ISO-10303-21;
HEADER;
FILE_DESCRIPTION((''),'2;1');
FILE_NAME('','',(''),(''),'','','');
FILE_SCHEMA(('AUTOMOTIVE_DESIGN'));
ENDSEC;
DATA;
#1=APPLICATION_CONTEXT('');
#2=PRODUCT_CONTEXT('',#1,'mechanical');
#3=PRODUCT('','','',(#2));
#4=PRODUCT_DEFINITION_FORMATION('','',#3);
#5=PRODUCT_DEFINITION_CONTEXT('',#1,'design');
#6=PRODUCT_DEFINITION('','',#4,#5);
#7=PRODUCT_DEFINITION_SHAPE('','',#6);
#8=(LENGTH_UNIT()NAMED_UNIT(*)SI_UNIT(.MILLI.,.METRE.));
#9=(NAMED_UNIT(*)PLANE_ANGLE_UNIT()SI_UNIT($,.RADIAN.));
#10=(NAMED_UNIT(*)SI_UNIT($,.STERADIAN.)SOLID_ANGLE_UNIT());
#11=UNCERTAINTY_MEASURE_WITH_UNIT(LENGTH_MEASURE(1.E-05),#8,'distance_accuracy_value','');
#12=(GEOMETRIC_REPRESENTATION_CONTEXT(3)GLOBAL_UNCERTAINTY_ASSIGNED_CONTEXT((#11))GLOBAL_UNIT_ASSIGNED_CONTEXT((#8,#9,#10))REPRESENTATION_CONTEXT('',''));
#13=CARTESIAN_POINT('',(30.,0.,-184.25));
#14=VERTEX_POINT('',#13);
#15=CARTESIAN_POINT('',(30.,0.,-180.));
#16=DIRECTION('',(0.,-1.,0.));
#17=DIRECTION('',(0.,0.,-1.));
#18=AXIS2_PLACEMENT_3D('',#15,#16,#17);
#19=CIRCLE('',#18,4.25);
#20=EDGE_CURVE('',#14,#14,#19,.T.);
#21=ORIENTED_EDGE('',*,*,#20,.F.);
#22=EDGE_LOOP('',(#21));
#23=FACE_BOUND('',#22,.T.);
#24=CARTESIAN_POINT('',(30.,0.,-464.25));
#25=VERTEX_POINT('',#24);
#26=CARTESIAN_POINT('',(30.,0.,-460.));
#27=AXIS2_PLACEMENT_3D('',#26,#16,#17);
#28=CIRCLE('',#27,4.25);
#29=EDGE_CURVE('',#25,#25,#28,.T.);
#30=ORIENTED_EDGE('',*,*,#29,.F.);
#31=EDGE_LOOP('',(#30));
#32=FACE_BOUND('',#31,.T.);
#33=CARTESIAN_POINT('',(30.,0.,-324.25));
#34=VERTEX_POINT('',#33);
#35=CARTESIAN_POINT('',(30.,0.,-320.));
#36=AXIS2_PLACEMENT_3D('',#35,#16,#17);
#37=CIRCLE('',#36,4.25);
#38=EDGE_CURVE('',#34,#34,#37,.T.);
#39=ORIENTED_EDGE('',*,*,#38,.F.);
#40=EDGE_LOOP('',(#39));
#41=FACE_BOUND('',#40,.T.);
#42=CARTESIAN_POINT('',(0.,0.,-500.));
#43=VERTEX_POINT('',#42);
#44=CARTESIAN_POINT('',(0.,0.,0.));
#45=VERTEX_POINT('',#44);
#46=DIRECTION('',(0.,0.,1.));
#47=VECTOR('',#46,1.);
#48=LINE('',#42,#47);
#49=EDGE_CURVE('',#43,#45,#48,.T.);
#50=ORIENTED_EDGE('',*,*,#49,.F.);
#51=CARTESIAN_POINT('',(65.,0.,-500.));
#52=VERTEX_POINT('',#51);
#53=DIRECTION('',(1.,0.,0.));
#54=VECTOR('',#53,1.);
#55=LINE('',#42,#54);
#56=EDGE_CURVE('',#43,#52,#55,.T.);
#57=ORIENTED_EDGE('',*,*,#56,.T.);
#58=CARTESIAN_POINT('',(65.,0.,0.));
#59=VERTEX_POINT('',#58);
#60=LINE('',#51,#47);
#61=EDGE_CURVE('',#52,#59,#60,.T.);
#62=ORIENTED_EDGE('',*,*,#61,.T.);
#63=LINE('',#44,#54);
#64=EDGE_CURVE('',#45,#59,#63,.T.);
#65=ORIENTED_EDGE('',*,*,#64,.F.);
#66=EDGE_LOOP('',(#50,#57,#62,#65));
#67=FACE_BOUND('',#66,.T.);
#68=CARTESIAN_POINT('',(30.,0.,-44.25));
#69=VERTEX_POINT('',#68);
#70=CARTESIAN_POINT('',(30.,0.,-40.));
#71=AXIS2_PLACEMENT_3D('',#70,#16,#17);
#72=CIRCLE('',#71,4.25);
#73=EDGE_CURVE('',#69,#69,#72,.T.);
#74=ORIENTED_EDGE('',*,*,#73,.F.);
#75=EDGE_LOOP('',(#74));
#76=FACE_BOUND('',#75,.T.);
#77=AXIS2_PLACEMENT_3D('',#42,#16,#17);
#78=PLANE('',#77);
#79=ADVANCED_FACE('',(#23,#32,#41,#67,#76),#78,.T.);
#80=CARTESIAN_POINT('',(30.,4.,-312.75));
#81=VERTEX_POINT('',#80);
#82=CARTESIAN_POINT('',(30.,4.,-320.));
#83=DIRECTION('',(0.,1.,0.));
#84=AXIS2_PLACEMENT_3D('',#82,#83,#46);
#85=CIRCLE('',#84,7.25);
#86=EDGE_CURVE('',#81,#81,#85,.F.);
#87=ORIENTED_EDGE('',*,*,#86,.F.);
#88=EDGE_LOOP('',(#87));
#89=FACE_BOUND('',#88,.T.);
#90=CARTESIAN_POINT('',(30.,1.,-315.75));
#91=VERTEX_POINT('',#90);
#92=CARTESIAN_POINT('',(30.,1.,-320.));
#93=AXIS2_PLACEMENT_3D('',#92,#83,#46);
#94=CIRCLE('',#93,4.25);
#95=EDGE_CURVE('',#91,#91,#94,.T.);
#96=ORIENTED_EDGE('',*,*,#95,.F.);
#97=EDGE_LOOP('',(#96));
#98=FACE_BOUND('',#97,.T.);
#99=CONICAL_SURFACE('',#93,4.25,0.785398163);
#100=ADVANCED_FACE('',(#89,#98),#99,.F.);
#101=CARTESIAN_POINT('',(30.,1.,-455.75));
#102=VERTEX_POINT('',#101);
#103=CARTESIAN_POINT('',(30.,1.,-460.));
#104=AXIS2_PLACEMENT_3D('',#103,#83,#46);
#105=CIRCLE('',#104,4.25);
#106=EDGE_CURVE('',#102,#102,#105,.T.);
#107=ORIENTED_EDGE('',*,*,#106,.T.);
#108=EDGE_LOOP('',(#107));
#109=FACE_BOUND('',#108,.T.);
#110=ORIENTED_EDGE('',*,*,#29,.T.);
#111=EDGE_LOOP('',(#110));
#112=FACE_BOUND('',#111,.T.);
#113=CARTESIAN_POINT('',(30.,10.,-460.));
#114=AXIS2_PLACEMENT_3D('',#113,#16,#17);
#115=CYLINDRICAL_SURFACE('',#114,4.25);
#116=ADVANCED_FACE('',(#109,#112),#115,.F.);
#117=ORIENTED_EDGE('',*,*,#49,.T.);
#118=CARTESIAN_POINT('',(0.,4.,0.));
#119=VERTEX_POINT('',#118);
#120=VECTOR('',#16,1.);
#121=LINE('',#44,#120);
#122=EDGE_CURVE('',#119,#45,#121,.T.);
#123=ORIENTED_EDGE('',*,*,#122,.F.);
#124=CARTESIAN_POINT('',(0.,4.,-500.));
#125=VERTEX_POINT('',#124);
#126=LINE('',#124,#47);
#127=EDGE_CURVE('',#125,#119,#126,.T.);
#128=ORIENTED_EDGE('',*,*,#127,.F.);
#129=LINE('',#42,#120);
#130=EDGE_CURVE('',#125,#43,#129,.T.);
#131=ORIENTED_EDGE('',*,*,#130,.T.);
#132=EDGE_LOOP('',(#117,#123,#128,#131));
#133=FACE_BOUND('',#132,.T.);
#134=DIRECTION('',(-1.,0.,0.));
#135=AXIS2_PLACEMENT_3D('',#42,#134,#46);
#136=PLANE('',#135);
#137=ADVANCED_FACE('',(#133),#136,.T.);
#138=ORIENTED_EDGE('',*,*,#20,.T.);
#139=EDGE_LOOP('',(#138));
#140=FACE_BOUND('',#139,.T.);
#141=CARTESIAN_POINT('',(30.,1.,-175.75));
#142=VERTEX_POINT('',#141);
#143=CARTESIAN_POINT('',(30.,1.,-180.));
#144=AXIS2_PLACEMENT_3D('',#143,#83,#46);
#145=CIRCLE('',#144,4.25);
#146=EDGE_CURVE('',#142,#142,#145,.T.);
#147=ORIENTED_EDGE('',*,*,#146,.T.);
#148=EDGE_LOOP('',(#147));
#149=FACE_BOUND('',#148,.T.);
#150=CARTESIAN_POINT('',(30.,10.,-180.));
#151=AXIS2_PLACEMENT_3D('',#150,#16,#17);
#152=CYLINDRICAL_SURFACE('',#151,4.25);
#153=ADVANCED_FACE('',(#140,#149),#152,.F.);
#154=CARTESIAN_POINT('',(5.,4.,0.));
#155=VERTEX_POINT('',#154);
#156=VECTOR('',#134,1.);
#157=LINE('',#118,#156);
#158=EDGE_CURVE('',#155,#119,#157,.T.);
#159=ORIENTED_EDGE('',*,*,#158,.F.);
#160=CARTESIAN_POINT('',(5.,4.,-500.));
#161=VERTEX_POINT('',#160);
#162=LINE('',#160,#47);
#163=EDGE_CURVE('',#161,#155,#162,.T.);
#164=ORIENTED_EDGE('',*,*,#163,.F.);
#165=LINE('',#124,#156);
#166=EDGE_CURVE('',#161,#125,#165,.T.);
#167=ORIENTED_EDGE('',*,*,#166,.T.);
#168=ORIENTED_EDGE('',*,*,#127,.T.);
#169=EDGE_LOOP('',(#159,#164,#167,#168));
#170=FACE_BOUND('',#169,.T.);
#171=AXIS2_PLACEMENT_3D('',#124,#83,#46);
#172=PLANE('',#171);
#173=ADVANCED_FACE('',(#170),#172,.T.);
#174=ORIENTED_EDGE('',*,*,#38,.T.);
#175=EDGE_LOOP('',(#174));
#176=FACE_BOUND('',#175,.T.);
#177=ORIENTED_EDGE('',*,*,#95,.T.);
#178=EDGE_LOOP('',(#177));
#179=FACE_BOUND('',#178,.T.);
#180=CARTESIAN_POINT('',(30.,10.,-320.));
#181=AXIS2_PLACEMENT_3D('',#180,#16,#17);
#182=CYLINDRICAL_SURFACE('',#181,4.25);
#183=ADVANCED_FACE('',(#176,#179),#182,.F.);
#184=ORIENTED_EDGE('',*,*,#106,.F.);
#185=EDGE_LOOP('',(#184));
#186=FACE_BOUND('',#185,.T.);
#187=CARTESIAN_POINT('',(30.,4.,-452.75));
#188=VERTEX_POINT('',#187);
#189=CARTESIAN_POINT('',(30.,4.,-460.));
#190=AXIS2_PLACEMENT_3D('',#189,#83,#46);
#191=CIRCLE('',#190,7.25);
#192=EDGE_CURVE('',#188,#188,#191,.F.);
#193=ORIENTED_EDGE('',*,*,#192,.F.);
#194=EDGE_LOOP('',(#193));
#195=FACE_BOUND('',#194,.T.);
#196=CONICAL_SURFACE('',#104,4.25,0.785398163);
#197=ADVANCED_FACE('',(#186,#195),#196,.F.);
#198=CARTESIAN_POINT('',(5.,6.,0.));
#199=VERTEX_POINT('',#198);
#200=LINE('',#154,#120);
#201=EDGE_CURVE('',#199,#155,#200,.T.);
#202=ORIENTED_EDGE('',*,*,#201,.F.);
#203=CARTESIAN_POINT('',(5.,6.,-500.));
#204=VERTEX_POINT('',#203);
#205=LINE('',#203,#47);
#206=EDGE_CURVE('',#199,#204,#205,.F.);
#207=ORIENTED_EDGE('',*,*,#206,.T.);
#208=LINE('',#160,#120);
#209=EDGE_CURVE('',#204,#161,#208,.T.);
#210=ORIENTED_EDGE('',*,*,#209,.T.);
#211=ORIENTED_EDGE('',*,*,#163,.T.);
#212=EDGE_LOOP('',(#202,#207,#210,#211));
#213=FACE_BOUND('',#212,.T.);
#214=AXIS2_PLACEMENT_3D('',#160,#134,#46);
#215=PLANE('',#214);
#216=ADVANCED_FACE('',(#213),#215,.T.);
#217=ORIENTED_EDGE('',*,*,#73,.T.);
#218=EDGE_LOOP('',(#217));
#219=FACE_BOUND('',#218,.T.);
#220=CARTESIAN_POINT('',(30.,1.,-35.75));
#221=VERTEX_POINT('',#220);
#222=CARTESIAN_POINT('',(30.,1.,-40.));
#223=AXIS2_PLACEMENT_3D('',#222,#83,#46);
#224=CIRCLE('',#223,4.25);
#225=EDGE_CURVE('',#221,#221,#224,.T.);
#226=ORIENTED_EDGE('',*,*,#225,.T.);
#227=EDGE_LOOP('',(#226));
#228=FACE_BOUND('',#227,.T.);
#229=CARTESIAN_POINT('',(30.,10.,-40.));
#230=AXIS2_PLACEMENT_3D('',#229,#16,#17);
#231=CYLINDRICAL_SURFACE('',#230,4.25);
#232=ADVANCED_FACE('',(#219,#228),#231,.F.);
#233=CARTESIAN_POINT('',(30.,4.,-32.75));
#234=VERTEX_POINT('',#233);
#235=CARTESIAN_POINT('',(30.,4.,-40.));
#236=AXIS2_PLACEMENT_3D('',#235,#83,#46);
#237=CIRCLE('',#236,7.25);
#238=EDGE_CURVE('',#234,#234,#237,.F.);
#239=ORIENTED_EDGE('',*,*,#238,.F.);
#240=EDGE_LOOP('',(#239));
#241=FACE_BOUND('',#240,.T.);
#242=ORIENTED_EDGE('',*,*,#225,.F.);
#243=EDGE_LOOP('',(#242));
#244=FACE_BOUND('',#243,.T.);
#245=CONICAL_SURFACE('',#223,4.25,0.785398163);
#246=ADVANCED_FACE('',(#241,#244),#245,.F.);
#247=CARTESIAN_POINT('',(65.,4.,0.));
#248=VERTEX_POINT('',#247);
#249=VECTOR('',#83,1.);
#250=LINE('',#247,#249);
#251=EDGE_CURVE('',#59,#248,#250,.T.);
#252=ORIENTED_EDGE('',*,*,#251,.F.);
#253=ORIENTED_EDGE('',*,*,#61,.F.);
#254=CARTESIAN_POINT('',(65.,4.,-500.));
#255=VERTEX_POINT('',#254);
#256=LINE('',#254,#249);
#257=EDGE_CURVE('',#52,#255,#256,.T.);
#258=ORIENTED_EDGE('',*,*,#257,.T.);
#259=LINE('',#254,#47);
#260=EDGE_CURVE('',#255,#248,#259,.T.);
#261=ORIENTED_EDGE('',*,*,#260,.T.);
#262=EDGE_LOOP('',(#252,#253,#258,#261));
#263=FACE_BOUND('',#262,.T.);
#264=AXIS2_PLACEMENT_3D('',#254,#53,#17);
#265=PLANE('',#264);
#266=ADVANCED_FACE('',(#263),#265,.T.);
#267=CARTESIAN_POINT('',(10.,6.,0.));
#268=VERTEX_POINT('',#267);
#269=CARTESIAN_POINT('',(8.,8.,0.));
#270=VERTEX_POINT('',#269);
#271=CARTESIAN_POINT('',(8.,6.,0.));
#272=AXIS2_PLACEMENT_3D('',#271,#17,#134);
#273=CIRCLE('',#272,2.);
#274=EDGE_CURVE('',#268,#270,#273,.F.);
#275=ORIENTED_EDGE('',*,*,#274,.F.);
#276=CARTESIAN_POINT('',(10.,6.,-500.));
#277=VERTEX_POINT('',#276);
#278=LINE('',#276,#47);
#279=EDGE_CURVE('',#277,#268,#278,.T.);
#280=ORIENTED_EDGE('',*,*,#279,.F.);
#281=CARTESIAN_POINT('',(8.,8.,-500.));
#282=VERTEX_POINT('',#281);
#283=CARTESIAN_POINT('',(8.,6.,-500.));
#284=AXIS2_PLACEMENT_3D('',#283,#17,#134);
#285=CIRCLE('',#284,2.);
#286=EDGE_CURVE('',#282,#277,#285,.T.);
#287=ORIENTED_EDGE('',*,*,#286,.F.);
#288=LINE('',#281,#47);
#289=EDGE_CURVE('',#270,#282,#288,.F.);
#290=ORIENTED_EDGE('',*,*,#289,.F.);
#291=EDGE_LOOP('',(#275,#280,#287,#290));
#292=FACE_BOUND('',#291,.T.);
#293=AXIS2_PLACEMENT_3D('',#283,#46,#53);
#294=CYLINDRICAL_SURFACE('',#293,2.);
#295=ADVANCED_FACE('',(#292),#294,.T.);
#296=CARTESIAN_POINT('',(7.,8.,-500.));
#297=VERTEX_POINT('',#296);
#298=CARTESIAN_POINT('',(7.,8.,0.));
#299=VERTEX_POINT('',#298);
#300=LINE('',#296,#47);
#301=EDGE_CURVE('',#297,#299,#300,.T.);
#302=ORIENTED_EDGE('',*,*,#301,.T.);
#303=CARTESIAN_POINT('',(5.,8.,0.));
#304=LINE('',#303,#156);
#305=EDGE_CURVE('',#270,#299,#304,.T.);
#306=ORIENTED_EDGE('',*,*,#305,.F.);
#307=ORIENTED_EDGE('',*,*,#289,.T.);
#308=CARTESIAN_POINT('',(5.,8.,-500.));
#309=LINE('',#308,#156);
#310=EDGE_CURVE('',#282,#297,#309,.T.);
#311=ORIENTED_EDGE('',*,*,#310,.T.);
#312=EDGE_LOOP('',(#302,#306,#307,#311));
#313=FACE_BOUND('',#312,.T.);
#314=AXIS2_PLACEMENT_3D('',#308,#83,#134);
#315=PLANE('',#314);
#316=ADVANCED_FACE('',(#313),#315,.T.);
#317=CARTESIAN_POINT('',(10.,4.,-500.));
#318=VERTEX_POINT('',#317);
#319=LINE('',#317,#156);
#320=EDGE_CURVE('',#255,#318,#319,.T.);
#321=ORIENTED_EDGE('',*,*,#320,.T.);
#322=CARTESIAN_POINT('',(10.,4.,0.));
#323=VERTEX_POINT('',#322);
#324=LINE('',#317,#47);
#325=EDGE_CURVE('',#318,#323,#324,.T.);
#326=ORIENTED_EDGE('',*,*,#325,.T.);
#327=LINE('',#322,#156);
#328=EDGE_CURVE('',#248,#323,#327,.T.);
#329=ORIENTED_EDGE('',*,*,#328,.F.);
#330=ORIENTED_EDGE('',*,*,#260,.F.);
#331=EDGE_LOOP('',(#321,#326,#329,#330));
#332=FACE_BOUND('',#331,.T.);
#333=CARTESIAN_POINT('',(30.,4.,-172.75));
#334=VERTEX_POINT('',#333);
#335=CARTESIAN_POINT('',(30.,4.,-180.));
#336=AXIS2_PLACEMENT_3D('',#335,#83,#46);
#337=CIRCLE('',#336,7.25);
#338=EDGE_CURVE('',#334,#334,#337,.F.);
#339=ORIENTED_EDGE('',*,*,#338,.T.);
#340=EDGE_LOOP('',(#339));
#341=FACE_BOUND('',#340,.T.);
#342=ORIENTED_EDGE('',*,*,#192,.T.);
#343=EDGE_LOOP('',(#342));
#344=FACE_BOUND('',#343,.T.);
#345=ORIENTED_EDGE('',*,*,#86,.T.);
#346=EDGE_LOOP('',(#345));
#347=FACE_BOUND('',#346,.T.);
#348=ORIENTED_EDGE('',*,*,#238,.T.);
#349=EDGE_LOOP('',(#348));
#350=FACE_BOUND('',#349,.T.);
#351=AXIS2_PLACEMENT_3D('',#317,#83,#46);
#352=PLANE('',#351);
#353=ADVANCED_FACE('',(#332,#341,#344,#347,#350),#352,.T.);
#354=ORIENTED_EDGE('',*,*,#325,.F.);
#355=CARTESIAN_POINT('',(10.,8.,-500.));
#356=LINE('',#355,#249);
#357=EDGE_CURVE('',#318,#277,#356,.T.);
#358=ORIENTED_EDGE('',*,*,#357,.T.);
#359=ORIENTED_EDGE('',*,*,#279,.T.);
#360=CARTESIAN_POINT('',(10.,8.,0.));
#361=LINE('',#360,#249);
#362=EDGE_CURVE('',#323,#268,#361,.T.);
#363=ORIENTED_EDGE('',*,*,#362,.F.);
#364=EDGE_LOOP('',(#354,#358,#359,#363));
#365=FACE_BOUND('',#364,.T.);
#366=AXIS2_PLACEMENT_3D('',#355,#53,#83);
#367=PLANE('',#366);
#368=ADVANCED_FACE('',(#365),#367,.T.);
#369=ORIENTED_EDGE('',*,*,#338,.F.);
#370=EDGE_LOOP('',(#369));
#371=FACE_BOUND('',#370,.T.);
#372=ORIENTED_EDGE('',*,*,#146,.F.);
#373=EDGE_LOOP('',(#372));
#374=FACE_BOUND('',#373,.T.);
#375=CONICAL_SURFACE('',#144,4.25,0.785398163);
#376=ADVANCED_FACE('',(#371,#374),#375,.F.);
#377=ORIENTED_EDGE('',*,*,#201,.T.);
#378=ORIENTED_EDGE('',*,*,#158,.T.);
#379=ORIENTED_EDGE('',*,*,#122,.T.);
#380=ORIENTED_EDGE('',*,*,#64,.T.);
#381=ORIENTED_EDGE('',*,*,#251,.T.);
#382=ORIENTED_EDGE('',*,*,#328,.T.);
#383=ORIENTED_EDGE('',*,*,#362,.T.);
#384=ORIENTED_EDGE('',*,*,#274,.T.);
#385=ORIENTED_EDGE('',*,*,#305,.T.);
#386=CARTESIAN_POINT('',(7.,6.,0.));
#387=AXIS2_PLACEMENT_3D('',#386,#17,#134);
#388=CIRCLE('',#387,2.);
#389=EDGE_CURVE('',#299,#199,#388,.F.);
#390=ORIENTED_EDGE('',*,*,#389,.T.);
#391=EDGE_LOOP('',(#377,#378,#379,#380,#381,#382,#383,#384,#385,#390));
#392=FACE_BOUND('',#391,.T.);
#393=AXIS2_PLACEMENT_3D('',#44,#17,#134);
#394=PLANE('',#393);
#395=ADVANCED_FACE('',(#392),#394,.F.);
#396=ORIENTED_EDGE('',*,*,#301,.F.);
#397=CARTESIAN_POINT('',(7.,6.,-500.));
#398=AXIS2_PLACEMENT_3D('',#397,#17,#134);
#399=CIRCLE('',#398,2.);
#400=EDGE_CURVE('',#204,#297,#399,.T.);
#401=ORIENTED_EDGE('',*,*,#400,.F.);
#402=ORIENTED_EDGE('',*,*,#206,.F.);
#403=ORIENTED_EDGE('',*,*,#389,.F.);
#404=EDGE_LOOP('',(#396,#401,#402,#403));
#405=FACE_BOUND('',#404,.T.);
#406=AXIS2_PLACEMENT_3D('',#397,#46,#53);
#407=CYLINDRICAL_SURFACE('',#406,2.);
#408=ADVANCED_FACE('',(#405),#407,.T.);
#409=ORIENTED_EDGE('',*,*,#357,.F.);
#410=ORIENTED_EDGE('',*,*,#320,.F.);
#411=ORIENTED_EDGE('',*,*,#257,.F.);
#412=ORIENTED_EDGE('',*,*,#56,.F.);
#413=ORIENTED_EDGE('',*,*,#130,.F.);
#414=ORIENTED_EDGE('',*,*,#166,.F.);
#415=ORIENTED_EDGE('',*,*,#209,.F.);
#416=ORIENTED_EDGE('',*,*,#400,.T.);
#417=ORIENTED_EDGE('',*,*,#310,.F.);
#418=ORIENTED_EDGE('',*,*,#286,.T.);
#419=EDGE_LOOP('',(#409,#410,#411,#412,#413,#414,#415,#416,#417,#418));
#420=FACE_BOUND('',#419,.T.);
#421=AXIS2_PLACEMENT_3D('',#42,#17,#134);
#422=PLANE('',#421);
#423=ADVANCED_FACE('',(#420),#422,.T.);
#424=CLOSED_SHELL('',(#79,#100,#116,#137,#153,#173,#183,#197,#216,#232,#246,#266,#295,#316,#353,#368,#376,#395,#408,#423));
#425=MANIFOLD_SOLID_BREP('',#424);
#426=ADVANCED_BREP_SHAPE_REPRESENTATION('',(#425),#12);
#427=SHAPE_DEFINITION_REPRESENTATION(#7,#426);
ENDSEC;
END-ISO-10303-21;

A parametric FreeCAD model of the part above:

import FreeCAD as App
import Part
import Sketcher

V = App.Vector


def edges_at(feature, points):
    """Names of the edges that pass closest to the given points."""
    edges = feature.Shape.Edges
    near = lambda p: min(range(len(edges)), key=lambda i: edges[i].distToShape(Part.Vertex(*p))[0])
    return sorted({f"Edge{near(p) + 1}" for p in points})


def add_polygon(sketch, points):
    """Adds a closed chain of lines whose ends are joined by coincident constraints."""
    first, n = sketch.GeometryCount, len(points)
    for a, b in zip(points, points[1:] + points[:1]):
        sketch.addGeometry(Part.LineSegment(App.Vector(*a, 0), App.Vector(*b, 0)), False)
    for i in range(n):
        sketch.addConstraint(Sketcher.Constraint("Coincident", first + i, 2, first + (i + 1) % n, 1))

doc = App.newDocument("Part")
params = doc.addObject("Spreadsheet::Sheet", "Params")
for row, (alias, value) in enumerate([
    ("sketch1_width", "65 mm"),
    ("sketch1_width2", "55 mm"),
    ("sketch1_height", "4 mm"),
    ("pad1_length", "500 mm"),
    ("fillet_radius", "2 mm"),
    ("sketch2_diameter", "8.5 mm"),
    ("pocket1_length", "10 mm"),
    ("chamfer_size", "3 mm"),
], start=1):
    params.set(f"A{row}", alias)
    params.set(f"B{row}", "=" + value)
    params.setAlias(f"B{row}", alias)

body = doc.addObject("PartDesign::Body", "Body")

# Sketch on XY plane
sketch1 = body.newObject("Sketcher::SketchObject", "Sketch")
sketch1.AttachmentSupport = (doc.getObject("XY_Plane"), [""])
sketch1.MapMode = "FlatFace"
add_polygon(sketch1, [(0, 0), (65, 0), (65, 4), (10, 4), (10, 8), (5, 8), (5, 4), (0, 4)])  # lines 0-7
sketch1.addConstraint(Sketcher.Constraint("Horizontal", 0))
sketch1.addConstraint(Sketcher.Constraint("Vertical", 1))
sketch1.addConstraint(Sketcher.Constraint("Horizontal", 2))
sketch1.addConstraint(Sketcher.Constraint("Vertical", 3))
sketch1.addConstraint(Sketcher.Constraint("Horizontal", 4))
sketch1.addConstraint(Sketcher.Constraint("Vertical", 5))
sketch1.addConstraint(Sketcher.Constraint("Horizontal", 6))
sketch1.addConstraint(Sketcher.Constraint("Vertical", 7))
sketch1.addConstraint(Sketcher.Constraint("Coincident", 7, 2, -1, 1))
sketch1.addConstraint(Sketcher.Constraint("Horizontal", 2, 2, 5, 2))
sketch1.addConstraint(Sketcher.Constraint("Equal", 4, 6))
sketch1.addConstraint(Sketcher.Constraint("Equal", 1, 3))
sketch1.addConstraint(Sketcher.Constraint("DistanceX", 0, 1, 0, 2, 65.0))
sketch1.addConstraint(Sketcher.Constraint("DistanceX", 2, 2, 2, 1, 55.0))
sketch1.addConstraint(Sketcher.Constraint("DistanceY", 1, 1, 1, 2, 4.0))
sketch1.setExpression("Constraints[20]", "Params.sketch1_width")
sketch1.setExpression("Constraints[21]", "Params.sketch1_width2")
sketch1.setExpression("Constraints[22]", "Params.sketch1_height")
pad1 = body.newObject("PartDesign::Pad", "Pad")
pad1.Profile = sketch1
pad1.setExpression("Length", "Params.pad1_length")
pad1.Reversed = True
doc.recompute()

fillet = body.newObject("PartDesign::Fillet", "Fillet")
fillet.Base = (pad1, edges_at(pad1, [(5, 8, -250), (10, 8, -250)]))
fillet.setExpression("Radius", "Params.fillet_radius")

# Sketch on XZ plane
sketch2 = body.newObject("Sketcher::SketchObject", "Sketch001")
sketch2.AttachmentSupport = (doc.getObject("XZ_Plane"), [""])
sketch2.MapMode = "FlatFace"
sketch2.addGeometry(Part.Circle(V(30, -40, 0), V(0, 0, 1), 4.2), False)
sketch2.addGeometry(Part.Circle(V(30, -180, 0), V(0, 0, 1), 4.2), False)
sketch2.addGeometry(Part.Circle(V(30, -320, 0), V(0, 0, 1), 4.2), False)
sketch2.addGeometry(Part.Circle(V(30, -460, 0), V(0, 0, 1), 4.2), False)
sketch2.addConstraint(Sketcher.Constraint("Equal", 0, 1))
sketch2.addConstraint(Sketcher.Constraint("Equal", 1, 2))
sketch2.addConstraint(Sketcher.Constraint("Equal", 2, 3))
sketch2.addConstraint(Sketcher.Constraint("Vertical", 0, 3, 1, 3))
sketch2.addConstraint(Sketcher.Constraint("Vertical", 1, 3, 2, 3))
sketch2.addConstraint(Sketcher.Constraint("Vertical", 2, 3, 3, 3))
sketch2.addConstraint(Sketcher.Constraint("Diameter", 0, 8.5))
sketch2.addConstraint(Sketcher.Constraint("DistanceX", -1, 1, 0, 3, 30.0))
sketch2.addConstraint(Sketcher.Constraint("DistanceY", 0, 3, -1, 1, 40.0))
sketch2.addConstraint(Sketcher.Constraint("DistanceY", 1, 3, -1, 1, 180.0))
sketch2.addConstraint(Sketcher.Constraint("DistanceY", 2, 3, -1, 1, 320.0))
sketch2.addConstraint(Sketcher.Constraint("DistanceY", 3, 3, -1, 1, 460.0))
sketch2.setExpression("Constraints[6]", "Params.sketch2_diameter")
pocket1 = body.newObject("PartDesign::Pocket", "Pocket")
pocket1.Profile = sketch2
pocket1.setExpression("Length", "Params.pocket1_length")
doc.recompute()

chamfer = body.newObject("PartDesign::Chamfer", "Chamfer")
chamfer.Base = (pocket1, edges_at(pocket1, [
    (30, 4, -35.75),
    (30, 4, -175.75),
    (30, 4, -315.75),
    (30, 4, -455.75),
]))
chamfer.setExpression("Size", "Params.chamfer_size")

doc.recompute()
